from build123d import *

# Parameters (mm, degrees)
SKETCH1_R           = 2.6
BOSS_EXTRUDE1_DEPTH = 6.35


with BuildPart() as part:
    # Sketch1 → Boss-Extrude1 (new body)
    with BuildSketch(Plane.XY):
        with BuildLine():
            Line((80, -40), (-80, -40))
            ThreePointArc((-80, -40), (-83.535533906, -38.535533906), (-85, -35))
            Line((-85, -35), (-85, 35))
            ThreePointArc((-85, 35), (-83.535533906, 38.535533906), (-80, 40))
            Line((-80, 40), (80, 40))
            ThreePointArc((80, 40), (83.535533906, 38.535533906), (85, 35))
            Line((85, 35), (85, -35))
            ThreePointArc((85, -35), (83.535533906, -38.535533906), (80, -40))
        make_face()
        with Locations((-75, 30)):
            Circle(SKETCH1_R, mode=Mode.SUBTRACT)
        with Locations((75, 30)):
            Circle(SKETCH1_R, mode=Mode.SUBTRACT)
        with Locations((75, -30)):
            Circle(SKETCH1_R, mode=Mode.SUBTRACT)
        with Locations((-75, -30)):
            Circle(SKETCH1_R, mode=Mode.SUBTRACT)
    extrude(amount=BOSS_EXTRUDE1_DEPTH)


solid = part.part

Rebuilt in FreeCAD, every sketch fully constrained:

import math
import FreeCAD as App
import Part
import Sketcher
from FreeCAD import Vector

doc = App.newDocument("Part")
params = doc.addObject("Spreadsheet::Sheet", "Params")
for row, (alias, value) in enumerate([
    ("sketch1_radius", "5 mm"),
    ("sketch1_diameter", "5.2 mm"),
    ("sketch1_width", "160 mm"),
    ("sketch1_height", "70 mm"),
    ("pad1_length", "6.35 mm"),
], start=1):
    params.set(f"A{row}", alias)
    params.set(f"B{row}", "=" + value)
    params.setAlias(f"B{row}", alias)

body = doc.addObject("PartDesign::Body", "Body")

sketch1 = body.newObject("Sketcher::SketchObject", "Sketch")
sketch1.AttachmentSupport = (doc.getObject("XY_Plane"), [""])
sketch1.MapMode = "FlatFace"
sketch1.addGeometry(Part.LineSegment(Vector(-80, -40, 0), Vector(80, -40, 0)), False)
sketch1.addGeometry(Part.ArcOfCircle(Part.Circle(Vector(80, -35, 0), Vector(0, 0, 1), 5), math.radians(-90), math.radians(0)), False)
sketch1.addGeometry(Part.LineSegment(Vector(85, -35, 0), Vector(85, 35, 0)), False)
sketch1.addGeometry(Part.ArcOfCircle(Part.Circle(Vector(80, 35, 0), Vector(0, 0, 1), 5), math.radians(0), math.radians(90)), False)
sketch1.addGeometry(Part.LineSegment(Vector(80, 40, 0), Vector(-80, 40, 0)), False)
sketch1.addGeometry(Part.ArcOfCircle(Part.Circle(Vector(-80, 35, 0), Vector(0, 0, 1), 5), math.radians(90), math.radians(180)), False)
sketch1.addGeometry(Part.LineSegment(Vector(-85, 35, 0), Vector(-85, -35, 0)), False)
sketch1.addGeometry(Part.ArcOfCircle(Part.Circle(Vector(-80, -35, 0), Vector(0, 0, 1), 5), math.radians(180), math.radians(270)), False)
sketch1.addGeometry(Part.Circle(Vector(75, -30, 0), Vector(0, 0, 1), 2.6), False)
sketch1.addGeometry(Part.Circle(Vector(-75, -30, 0), Vector(0, 0, 1), 2.6), False)
sketch1.addGeometry(Part.Circle(Vector(75, 30, 0), Vector(0, 0, 1), 2.6), False)
sketch1.addGeometry(Part.Circle(Vector(-75, 30, 0), Vector(0, 0, 1), 2.6), False)
sketch1.addConstraint(Sketcher.Constraint("Tangent", 0, 2, 1, 1))
sketch1.addConstraint(Sketcher.Constraint("Tangent", 1, 2, 2, 1))
sketch1.addConstraint(Sketcher.Constraint("Tangent", 2, 2, 3, 1))
sketch1.addConstraint(Sketcher.Constraint("Tangent", 3, 2, 4, 1))
sketch1.addConstraint(Sketcher.Constraint("Tangent", 4, 2, 5, 1))
sketch1.addConstraint(Sketcher.Constraint("Tangent", 5, 2, 6, 1))
sketch1.addConstraint(Sketcher.Constraint("Tangent", 6, 2, 7, 1))
sketch1.addConstraint(Sketcher.Constraint("Tangent", 7, 2, 0, 1))
sketch1.addConstraint(Sketcher.Constraint("Horizontal", 0))
sketch1.addConstraint(Sketcher.Constraint("Vertical", 2))
sketch1.addConstraint(Sketcher.Constraint("Horizontal", 4))
sketch1.addConstraint(Sketcher.Constraint("Vertical", 6))
sketch1.addConstraint(Sketcher.Constraint("Equal", 1, 3))
sketch1.addConstraint(Sketcher.Constraint("Equal", 3, 5))
sketch1.addConstraint(Sketcher.Constraint("Equal", 5, 7))
sketch1.addConstraint(Sketcher.Constraint("Equal", 8, 9))
sketch1.addConstraint(Sketcher.Constraint("Equal", 9, 10))
sketch1.addConstraint(Sketcher.Constraint("Equal", 10, 11))
sketch1.addConstraint(Sketcher.Constraint("Symmetric", 1, 3, 5, 3, -1, 1))
sketch1.addConstraint(Sketcher.Constraint("Symmetric", 9, 3, 10, 3, -1, 1))
sketch1.addConstraint(Sketcher.Constraint("Symmetric", 8, 3, 11, 3, -1, 1))
sketch1.addConstraint(Sketcher.Constraint("Symmetric", 8, 3, 9, 3, -2))
sketch1.addConstraint(Sketcher.Constraint("Radius", 1, 5.0))
sketch1.addConstraint(Sketcher.Constraint("Diameter", 8, 5.2))
sketch1.addConstraint(Sketcher.Constraint("DistanceX", 0, 1, 0, 2, 160.0))
sketch1.addConstraint(Sketcher.Constraint("DistanceY", 2, 1, 2, 2, 70.0))
sketch1.addConstraint(Sketcher.Constraint("DistanceX", -1, 1, 8, 3, 75.0))
sketch1.addConstraint(Sketcher.Constraint("DistanceY", 8, 3, -1, 1, 30.0))
sketch1.setExpression("Constraints[22]", "Params.sketch1_radius")
sketch1.setExpression("Constraints[23]", "Params.sketch1_diameter")
sketch1.setExpression("Constraints[24]", "Params.sketch1_width")
sketch1.setExpression("Constraints[25]", "Params.sketch1_height")
pad1 = body.newObject("PartDesign::Pad", "Pad")
pad1.Profile = sketch1
pad1.setExpression("Length", "Params.pad1_length")

doc.recompute()
